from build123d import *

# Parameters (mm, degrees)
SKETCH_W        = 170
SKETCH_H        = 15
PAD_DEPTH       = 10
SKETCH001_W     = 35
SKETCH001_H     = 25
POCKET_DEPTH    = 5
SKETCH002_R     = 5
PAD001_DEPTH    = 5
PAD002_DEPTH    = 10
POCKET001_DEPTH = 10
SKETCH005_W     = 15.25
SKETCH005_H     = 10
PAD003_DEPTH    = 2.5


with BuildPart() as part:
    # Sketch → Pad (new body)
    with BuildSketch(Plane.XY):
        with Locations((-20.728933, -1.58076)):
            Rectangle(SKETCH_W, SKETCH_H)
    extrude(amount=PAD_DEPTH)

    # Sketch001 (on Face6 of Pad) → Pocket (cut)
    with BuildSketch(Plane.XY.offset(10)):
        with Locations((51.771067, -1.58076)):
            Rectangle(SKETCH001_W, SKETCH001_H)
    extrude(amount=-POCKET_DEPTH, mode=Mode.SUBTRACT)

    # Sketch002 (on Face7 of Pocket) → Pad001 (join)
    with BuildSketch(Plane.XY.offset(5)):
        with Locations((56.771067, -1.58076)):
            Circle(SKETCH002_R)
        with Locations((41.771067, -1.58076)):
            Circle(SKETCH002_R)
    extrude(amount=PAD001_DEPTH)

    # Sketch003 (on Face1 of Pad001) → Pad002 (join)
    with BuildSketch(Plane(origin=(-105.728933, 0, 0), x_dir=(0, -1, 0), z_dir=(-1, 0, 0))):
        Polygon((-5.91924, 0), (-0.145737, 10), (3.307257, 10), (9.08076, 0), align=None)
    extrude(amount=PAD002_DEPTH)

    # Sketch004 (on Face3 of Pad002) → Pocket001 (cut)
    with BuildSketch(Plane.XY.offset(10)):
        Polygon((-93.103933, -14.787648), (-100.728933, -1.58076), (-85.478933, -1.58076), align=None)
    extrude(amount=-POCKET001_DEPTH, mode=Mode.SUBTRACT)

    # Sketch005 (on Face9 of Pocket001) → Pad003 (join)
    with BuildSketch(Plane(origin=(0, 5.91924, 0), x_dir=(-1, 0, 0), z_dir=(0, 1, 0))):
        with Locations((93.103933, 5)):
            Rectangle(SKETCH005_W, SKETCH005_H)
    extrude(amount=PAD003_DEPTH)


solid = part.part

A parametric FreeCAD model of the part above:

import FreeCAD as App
import Part
import Sketcher
from FreeCAD import Vector
Q = App.Units.Quantity


def add_polygon(sketch, points):
    """Adds a closed chain of lines whose ends are joined by coincident constraints."""
    first, n = sketch.GeometryCount, len(points)
    for a, b in zip(points, points[1:] + points[:1]):
        sketch.addGeometry(Part.LineSegment(App.Vector(*a, 0), App.Vector(*b, 0)), False)
    for i in range(n):
        sketch.addConstraint(Sketcher.Constraint("Coincident", first + i, 2, first + (i + 1) % n, 1))

doc = App.newDocument("Part")
body = doc.addObject("PartDesign::Body", "Body")

sketch1 = doc.addObject("Sketcher::SketchObject", "Sketch")
body.addObject(sketch1)
sketch1.AttachmentSupport = (doc.XY_Plane, [""])
sketch1.MapMode = "FlatFace"
add_polygon(sketch1, [(-106, 6), (-106, -9), (64, -9), (64, 6)])
sketch1.addConstraint(Sketcher.Constraint("Vertical", 0))
sketch1.addConstraint(Sketcher.Constraint("Horizontal", 1))
sketch1.addConstraint(Sketcher.Constraint("Vertical", 2))
sketch1.addConstraint(Sketcher.Constraint("Horizontal", 3))
sketch1.addConstraint(Sketcher.Constraint("DistanceX", 1, 1, 1, 2, Q("170 mm")))
sketch1.addConstraint(Sketcher.Constraint("DistanceY", 0, 2, 0, 1, Q("15 mm")))
sketch1.addConstraint(Sketcher.Constraint("DistanceY", 0, 2, -1, 1, Q("9.08076 mm")))
sketch1.addConstraint(Sketcher.Constraint("DistanceX", 0, 2, -1, 1, Q("105.728933 mm")))
pad1 = doc.addObject("PartDesign::Pad", "Pad")
body.addObject(pad1)
pad1.Profile = sketch1
pad1.Length = 10

sketch2 = doc.addObject("Sketcher::SketchObject", "Sketch001")
body.addObject(sketch2)
sketch2.AttachmentSupport = (doc.XY_Plane, [""])
sketch2.MapMode = "FlatFace"
sketch2.AttachmentOffset = App.Placement(Vector(0, 0, 10), App.Rotation())
add_polygon(sketch2, [(34, 11), (34, -14), (69, -14), (69, 11)])
sketch2.addConstraint(Sketcher.Constraint("Vertical", 0))
sketch2.addConstraint(Sketcher.Constraint("Horizontal", 1))
sketch2.addConstraint(Sketcher.Constraint("Vertical", 2))
sketch2.addConstraint(Sketcher.Constraint("Horizontal", 3))
sketch2.addConstraint(Sketcher.Constraint("DistanceX", 1, 1, 1, 2, Q("35 mm")))
sketch2.addConstraint(Sketcher.Constraint("DistanceY", 0, 2, 0, 1, Q("25 mm")))
sketch2.addConstraint(Sketcher.Constraint("DistanceY", 0, 2, -1, 1, Q("14.08076 mm")))
sketch2.addConstraint(Sketcher.Constraint("DistanceX", -1, 1, 0, 2, Q("34.271067 mm")))
pocket1 = doc.addObject("PartDesign::Pocket", "Pocket")
body.addObject(pocket1)
pocket1.Profile = sketch2
pocket1.Length = 5

sketch3 = doc.addObject("Sketcher::SketchObject", "Sketch002")
body.addObject(sketch3)
sketch3.AttachmentSupport = (doc.XY_Plane, [""])
sketch3.MapMode = "FlatFace"
sketch3.AttachmentOffset = App.Placement(Vector(0, 0, 5), App.Rotation())
sketch3.addGeometry(Part.Circle(Vector(57, -2, 0), Vector(0, 0, 1), 5), False)
sketch3.addGeometry(Part.Circle(Vector(42, -2, 0), Vector(0, 0, 1), 5), False)
sketch3.addConstraint(Sketcher.Constraint("Equal", 0, 1))
sketch3.addConstraint(Sketcher.Constraint("Horizontal", 0, 3, 1, 3))
sketch3.addConstraint(Sketcher.Constraint("Diameter", 0, Q("10 mm")))
sketch3.addConstraint(Sketcher.Constraint("DistanceX", 1, 3, 0, 3, Q("15 mm")))
sketch3.addConstraint(Sketcher.Constraint("DistanceY", 0, 3, -1, 1, Q("1.58076 mm")))
sketch3.addConstraint(Sketcher.Constraint("DistanceX", -1, 1, 0, 3, Q("56.771067 mm")))
pad2 = doc.addObject("PartDesign::Pad", "Pad001")
body.addObject(pad2)
pad2.Profile = sketch3
pad2.Length = 5

sketch4 = doc.addObject("Sketcher::SketchObject", "Sketch003")
body.addObject(sketch4)
sketch4.AttachmentSupport = (doc.YZ_Plane, [""])
sketch4.MapMode = "FlatFace"
sketch4.AttachmentOffset = App.Placement(Vector(0, 0, -105.728933), App.Rotation())
add_polygon(sketch4, [(0.1, 10), (5.9, 0), (-9.1, 0), (-3.3, 10)])
sketch4.addConstraint(Sketcher.Constraint("Horizontal", 1))
sketch4.addConstraint(Sketcher.Constraint("Horizontal", 3))
sketch4.addConstraint(Sketcher.Constraint("PointOnObject", 0, 2, -1))
sketch4.addConstraint(Sketcher.Constraint("Equal", 0, 2))
sketch4.addConstraint(Sketcher.Constraint("DistanceX", 1, 2, 1, 1, Q("15 mm")))
sketch4.addConstraint(Sketcher.Constraint("Angle", 0, Q("-59.999999 deg")))
sketch4.addConstraint(Sketcher.Constraint("DistanceY", -1, 1, 2, 2, Q("10 mm")))
sketch4.addConstraint(Sketcher.Constraint("DistanceX", -1, 1, 0, 2, Q("5.91924 mm")))
pad3 = doc.addObject("PartDesign::Pad", "Pad002")
body.addObject(pad3)
pad3.Profile = sketch4
pad3.Length = 10
pad3.Reversed = True

sketch5 = doc.addObject("Sketcher::SketchObject", "Sketch004")
body.addObject(sketch5)
sketch5.AttachmentSupport = (doc.XY_Plane, [""])
sketch5.MapMode = "FlatFace"
sketch5.AttachmentOffset = App.Placement(Vector(0, 0, 10), App.Rotation())
add_polygon(sketch5, [(-101, -2), (-93, -15), (-85, -2)])
sketch5.addConstraint(Sketcher.Constraint("Horizontal", 2))
sketch5.addConstraint(Sketcher.Constraint("Equal", 0, 1))
sketch5.addConstraint(Sketcher.Constraint("Angle", 0, Q("-60.000001 deg")))
sketch5.addConstraint(Sketcher.Constraint("DistanceX", 2, 2, 2, 1, Q("15.25 mm")))
sketch5.addConstraint(Sketcher.Constraint("DistanceY", 0, 2, -1, 1, Q("14.787648 mm")))
sketch5.addConstraint(Sketcher.Constraint("DistanceX", 0, 2, -1, 1, Q("93.103933 mm")))
pocket2 = doc.addObject("PartDesign::Pocket", "Pocket001")
body.addObject(pocket2)
pocket2.Profile = sketch5
pocket2.Length = 10

sketch6 = doc.addObject("Sketcher::SketchObject", "Sketch005")
body.addObject(sketch6)
sketch6.AttachmentSupport = (doc.XZ_Plane, [""])
sketch6.MapMode = "FlatFace"
sketch6.AttachmentOffset = App.Placement(Vector(0, 0, -5.91924), App.Rotation())
add_polygon(sketch6, [(-85, 10), (-85, 0), (-101, 0), (-101, 10)])
sketch6.addConstraint(Sketcher.Constraint("Vertical", 0))
sketch6.addConstraint(Sketcher.Constraint("Horizontal", 1))
sketch6.addConstraint(Sketcher.Constraint("Vertical", 2))
sketch6.addConstraint(Sketcher.Constraint("Horizontal", 3))
sketch6.addConstraint(Sketcher.Constraint("PointOnObject", 0, 2, -1))
sketch6.addConstraint(Sketcher.Constraint("DistanceY", 0, 2, 0, 1, Q("10 mm")))
sketch6.addConstraint(Sketcher.Constraint("DistanceX", 1, 2, 1, 1, Q("15.25 mm")))
sketch6.addConstraint(Sketcher.Constraint("DistanceX", 0, 2, -1, 1, Q("85.478933 mm")))
pad4 = doc.addObject("PartDesign::Pad", "Pad003")
body.addObject(pad4)
pad4.Profile = sketch6
pad4.Length = 2.5
pad4.Reversed = True

doc.recompute()
